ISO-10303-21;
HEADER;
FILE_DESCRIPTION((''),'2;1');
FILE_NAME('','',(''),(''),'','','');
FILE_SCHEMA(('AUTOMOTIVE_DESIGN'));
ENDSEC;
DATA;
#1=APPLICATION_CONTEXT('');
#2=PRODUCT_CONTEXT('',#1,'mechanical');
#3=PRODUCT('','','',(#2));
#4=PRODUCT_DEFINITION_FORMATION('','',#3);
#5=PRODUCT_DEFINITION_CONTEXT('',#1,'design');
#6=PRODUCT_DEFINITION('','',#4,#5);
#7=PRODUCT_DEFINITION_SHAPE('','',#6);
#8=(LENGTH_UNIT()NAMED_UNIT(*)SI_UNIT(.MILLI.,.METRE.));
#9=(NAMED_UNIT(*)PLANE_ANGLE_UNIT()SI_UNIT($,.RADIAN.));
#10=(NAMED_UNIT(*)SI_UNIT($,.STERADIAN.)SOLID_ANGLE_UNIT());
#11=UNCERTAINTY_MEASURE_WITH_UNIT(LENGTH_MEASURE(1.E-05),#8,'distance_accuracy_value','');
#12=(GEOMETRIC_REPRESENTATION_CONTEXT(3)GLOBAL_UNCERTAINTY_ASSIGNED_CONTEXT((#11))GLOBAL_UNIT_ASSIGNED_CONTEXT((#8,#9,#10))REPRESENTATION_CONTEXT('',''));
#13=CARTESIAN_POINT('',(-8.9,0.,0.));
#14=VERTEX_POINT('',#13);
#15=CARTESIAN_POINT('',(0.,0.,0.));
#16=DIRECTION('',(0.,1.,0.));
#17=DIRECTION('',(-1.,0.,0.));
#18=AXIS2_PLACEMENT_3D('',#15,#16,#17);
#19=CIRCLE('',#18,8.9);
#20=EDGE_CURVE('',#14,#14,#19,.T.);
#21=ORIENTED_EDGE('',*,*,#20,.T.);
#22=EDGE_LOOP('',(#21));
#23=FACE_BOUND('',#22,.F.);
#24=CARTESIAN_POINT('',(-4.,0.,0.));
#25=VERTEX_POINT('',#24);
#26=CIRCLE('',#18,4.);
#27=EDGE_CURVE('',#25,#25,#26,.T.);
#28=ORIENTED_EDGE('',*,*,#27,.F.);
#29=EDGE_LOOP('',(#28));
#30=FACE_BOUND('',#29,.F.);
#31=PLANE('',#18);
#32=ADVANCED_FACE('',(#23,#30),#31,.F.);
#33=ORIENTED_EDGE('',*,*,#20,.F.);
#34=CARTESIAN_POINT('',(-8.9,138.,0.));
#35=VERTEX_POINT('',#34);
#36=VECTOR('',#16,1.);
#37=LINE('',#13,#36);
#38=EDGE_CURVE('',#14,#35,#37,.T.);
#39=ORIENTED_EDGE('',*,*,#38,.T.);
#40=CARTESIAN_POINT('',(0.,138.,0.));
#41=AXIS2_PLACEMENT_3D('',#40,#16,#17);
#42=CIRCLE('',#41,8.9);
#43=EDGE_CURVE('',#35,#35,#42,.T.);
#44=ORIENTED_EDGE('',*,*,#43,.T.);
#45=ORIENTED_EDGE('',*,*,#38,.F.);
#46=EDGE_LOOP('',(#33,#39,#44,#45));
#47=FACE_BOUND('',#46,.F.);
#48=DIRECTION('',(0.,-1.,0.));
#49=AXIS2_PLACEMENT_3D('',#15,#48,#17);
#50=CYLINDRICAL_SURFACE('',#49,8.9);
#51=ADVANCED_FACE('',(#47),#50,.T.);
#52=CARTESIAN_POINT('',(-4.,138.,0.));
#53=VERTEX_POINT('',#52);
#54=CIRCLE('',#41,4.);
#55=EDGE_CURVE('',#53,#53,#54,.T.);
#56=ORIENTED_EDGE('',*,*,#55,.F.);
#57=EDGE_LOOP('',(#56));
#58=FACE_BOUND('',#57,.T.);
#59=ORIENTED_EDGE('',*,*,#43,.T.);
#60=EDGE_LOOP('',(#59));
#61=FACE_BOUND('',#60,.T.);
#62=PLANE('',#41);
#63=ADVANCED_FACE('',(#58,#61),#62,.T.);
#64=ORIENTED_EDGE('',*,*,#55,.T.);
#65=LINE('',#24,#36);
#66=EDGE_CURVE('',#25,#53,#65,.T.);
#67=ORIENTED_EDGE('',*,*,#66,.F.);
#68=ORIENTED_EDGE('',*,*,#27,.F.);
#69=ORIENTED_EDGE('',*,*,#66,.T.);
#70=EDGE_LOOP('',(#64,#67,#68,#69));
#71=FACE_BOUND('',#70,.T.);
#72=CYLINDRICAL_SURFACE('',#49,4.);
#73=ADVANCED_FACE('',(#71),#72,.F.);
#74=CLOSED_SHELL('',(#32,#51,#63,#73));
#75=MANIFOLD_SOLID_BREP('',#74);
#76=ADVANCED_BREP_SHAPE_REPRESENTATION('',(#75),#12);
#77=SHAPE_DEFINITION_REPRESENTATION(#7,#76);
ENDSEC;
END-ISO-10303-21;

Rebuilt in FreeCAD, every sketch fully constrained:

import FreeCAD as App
import Part
import Sketcher

V = App.Vector

doc = App.newDocument("Part")
body = doc.addObject("PartDesign::Body", "Body")

# Sketch on XZ plane
sketch1 = body.newObject("Sketcher::SketchObject", "Sketch")
sketch1.AttachmentSupport = (doc.getObject("XZ_Plane"), [""])
sketch1.MapMode = "FlatFace"
sketch1.addGeometry([
    Part.Circle(V(0, 0, 0), V(0, 0, 1), 8.9),
    Part.Circle(V(0, 0, 0), V(0, 0, 1), 4),
], False)
sketch1.addConstraint([
    Sketcher.Constraint("Coincident", 0, 3, -1, 1),
    Sketcher.Constraint("Coincident", 1, 3, -1, 1),
    Sketcher.Constraint("Diameter", 1, 8.0),
    Sketcher.Constraint("Diameter", 0, 17.8),
])
pad1 = body.newObject("PartDesign::Pad", "Pad")
pad1.Profile = sketch1
pad1.Length = 138
pad1.Reversed = True

doc.recompute()
